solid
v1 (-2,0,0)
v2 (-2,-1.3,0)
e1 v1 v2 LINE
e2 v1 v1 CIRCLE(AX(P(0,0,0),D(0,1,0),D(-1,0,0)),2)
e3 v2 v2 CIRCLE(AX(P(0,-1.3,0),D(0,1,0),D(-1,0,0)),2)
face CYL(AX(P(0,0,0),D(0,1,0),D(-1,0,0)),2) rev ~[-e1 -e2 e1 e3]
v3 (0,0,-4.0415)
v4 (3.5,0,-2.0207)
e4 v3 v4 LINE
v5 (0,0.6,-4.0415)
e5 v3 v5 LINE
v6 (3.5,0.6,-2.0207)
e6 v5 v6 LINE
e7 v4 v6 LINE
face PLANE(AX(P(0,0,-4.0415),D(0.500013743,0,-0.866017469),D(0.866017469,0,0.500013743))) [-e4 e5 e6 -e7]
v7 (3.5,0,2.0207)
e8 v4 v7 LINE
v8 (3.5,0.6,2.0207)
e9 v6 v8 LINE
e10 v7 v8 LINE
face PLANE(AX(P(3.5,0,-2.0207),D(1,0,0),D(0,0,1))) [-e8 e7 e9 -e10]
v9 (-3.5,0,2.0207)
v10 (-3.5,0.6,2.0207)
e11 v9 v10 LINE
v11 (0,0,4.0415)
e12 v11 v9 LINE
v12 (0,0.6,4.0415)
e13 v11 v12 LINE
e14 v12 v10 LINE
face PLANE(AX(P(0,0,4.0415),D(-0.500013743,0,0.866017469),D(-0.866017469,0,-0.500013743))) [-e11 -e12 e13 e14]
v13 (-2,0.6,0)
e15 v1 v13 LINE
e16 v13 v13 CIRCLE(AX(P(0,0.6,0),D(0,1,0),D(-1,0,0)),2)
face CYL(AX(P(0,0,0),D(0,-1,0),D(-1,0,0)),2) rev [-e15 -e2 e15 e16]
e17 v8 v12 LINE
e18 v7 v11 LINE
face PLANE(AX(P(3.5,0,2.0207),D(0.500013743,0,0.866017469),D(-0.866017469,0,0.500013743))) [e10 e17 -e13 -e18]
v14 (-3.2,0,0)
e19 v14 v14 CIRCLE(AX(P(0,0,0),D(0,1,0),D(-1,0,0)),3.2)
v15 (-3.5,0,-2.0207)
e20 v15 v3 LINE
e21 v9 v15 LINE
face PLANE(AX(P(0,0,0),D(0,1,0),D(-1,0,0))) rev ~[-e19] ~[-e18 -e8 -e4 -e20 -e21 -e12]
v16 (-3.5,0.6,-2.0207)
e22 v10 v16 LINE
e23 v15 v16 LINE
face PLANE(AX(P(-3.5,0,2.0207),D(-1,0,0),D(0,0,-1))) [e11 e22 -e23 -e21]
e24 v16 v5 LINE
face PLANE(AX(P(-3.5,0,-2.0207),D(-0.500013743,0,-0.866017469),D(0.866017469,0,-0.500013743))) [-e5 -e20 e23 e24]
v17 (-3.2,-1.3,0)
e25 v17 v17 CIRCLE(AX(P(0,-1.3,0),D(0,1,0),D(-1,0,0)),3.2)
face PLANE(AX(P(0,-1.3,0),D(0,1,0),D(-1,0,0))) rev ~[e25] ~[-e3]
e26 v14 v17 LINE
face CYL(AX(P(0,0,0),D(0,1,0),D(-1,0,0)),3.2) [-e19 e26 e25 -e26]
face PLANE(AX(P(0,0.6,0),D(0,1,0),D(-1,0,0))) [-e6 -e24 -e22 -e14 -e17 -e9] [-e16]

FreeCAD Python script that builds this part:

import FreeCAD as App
import Part
import Sketcher
Q = App.Units.Quantity

doc = App.newDocument("Part")
body = doc.addObject("PartDesign::Body", "Body")

sketch1 = doc.addObject("Sketcher::SketchObject", "Sketch")
body.addObject(sketch1)
sketch1.AttachmentSupport = (doc.XZ_Plane, [""])
sketch1.MapMode = "FlatFace"
sketch1.addGeometry([
    Part.LineSegment(App.Vector(-3.5, -2.0207, 0), App.Vector(-3.5, 2.0207, 0)),
    Part.LineSegment(App.Vector(-3.5, 2.0207, 0), App.Vector(0, 4.0415, 0)),
    Part.LineSegment(App.Vector(0, 4.0415, 0), App.Vector(3.5, 2.0207, 0)),
    Part.LineSegment(App.Vector(3.5, 2.0207, 0), App.Vector(3.5, -2.0207, 0)),
    Part.LineSegment(App.Vector(3.5, -2.0207, 0), App.Vector(0, -4.0415, 0)),
    Part.LineSegment(App.Vector(0, -4.0415, 0), App.Vector(-3.5, -2.0207, 0)),
    Part.Circle(App.Vector(0, 0, 0), App.Vector(0, 0, 1), 2),
], False)
sketch1.addConstraint([
    Sketcher.Constraint("Coincident", 0, 2, 1, 1),
    Sketcher.Constraint("Coincident", 1, 2, 2, 1),
    Sketcher.Constraint("Coincident", 2, 2, 3, 1),
    Sketcher.Constraint("Coincident", 3, 2, 4, 1),
    Sketcher.Constraint("Coincident", 4, 2, 5, 1),
    Sketcher.Constraint("Coincident", 5, 2, 0, 1),
    Sketcher.Constraint("Vertical", 0),
    Sketcher.Constraint("Vertical", 3),
    Sketcher.Constraint("Coincident", 6, 3, -1, 1),
    Sketcher.Constraint("Symmetric", 0, 2, 3, 2, -1, 1),
    Sketcher.Constraint("Symmetric", 1, 2, 4, 2, -1, 1),
    Sketcher.Constraint("PointOnObject", 1, 2, -2),
    Sketcher.Constraint("Parallel", 2, 5),
    Sketcher.Constraint("Horizontal", 0, 2, 2, 2),
    Sketcher.Constraint("Diameter", 6, Q("4 mm")),
    Sketcher.Constraint("DistanceX", 0, 2, 2, 2, Q("7 mm")),
    Sketcher.Constraint("Angle", 1, Q("30.001 deg")),
    Sketcher.Constraint("DistanceY", 0, 1, 0, 2, Q("4.0414 mm")),
])
pad1 = doc.addObject("PartDesign::Pad", "Pad")
body.addObject(pad1)
pad1.Profile = sketch1
pad1.Length = 0.6
pad1.Reversed = True

sketch2 = doc.addObject("Sketcher::SketchObject", "Sketch001")
body.addObject(sketch2)
sketch2.AttachmentSupport = (doc.XZ_Plane, [""])
sketch2.MapMode = "FlatFace"
sketch2.addGeometry([
    Part.Circle(App.Vector(0, 0, 0), App.Vector(0, 0, 1), 3.2),
    Part.Circle(App.Vector(0, 0, 0), App.Vector(0, 0, 1), 2),
], False)
sketch2.addConstraint([
    Sketcher.Constraint("Coincident", 0, 3, -1, 1),
    Sketcher.Constraint("Coincident", 1, 3, -1, 1),
    Sketcher.Constraint("Diameter", 1, Q("4 mm")),
    Sketcher.Constraint("Diameter", 0, Q("6.4 mm")),
])
pad2 = doc.addObject("PartDesign::Pad", "Pad001")
body.addObject(pad2)
pad2.Profile = sketch2
pad2.Length = 1.3

doc.recompute()
